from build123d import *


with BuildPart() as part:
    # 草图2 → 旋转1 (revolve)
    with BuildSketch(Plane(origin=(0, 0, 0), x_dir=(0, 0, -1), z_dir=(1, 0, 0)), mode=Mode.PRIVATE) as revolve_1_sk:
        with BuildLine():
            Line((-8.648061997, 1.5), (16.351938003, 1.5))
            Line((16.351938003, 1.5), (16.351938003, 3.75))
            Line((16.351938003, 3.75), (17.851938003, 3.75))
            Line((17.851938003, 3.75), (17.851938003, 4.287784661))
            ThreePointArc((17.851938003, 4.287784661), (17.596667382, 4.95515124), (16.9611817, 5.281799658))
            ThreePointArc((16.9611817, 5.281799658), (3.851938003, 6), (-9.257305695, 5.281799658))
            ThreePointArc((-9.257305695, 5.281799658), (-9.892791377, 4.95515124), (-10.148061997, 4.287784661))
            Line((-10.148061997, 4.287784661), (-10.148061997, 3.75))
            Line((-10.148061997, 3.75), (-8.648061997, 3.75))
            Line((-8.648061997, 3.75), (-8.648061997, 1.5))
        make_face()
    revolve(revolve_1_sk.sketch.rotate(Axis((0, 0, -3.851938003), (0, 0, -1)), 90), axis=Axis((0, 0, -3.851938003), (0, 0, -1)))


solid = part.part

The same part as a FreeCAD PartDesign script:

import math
import FreeCAD as App
import Part
import Sketcher

doc = App.newDocument("Part")
body = doc.addObject("PartDesign::Body", "Body")

sketch1 = body.newObject("Sketcher::SketchObject", "Sketch")
sketch1.AttachmentSupport = (doc.getObject("YZ_Plane"), [""])
sketch1.MapMode = "FlatFace"
sketch1.addGeometry(Part.LineSegment(App.Vector(1.5, 8.6, 0), App.Vector(1.5, -16.4, 0)), False)
sketch1.addGeometry(Part.LineSegment(App.Vector(1.5, -16.4, 0), App.Vector(3.8, -16.4, 0)), False)
sketch1.addGeometry(Part.LineSegment(App.Vector(3.8, -16.4, 0), App.Vector(3.8, -17.9, 0)), False)
sketch1.addGeometry(Part.LineSegment(App.Vector(3.8, -17.9, 0), App.Vector(4.3, -17.9, 0)), False)
sketch1.addGeometry(Part.ArcOfCircle(Part.Circle(App.Vector(4.3, -16.9, 0), App.Vector(0, 0, 1), 1), math.radians(-90), math.radians(-6)), False)
sketch1.addGeometry(Part.ArcOfCircle(Part.Circle(App.Vector(-114, -3.9, 0), App.Vector(0, 0, 1), 120), math.radians(-6.27), math.radians(6.27)), False)
sketch1.addGeometry(Part.ArcOfCircle(Part.Circle(App.Vector(4.3, 9.1, 0), App.Vector(0, 0, 1), 1), math.radians(6), math.radians(90)), False)
sketch1.addGeometry(Part.LineSegment(App.Vector(4.3, 10.1, 0), App.Vector(3.8, 10.1, 0)), False)
sketch1.addGeometry(Part.LineSegment(App.Vector(3.8, 10.1, 0), App.Vector(3.8, 8.6, 0)), False)
sketch1.addGeometry(Part.LineSegment(App.Vector(3.8, 8.6, 0), App.Vector(1.5, 8.6, 0)), False)
sketch1.addConstraint(Sketcher.Constraint("Coincident", 0, 2, 1, 1))
sketch1.addConstraint(Sketcher.Constraint("Coincident", 1, 2, 2, 1))
sketch1.addConstraint(Sketcher.Constraint("Coincident", 2, 2, 3, 1))
sketch1.addConstraint(Sketcher.Constraint("Tangent", 3, 2, 4, 1))
sketch1.addConstraint(Sketcher.Constraint("Tangent", 4, 2, 5, 1))
sketch1.addConstraint(Sketcher.Constraint("Tangent", 5, 2, 6, 1))
sketch1.addConstraint(Sketcher.Constraint("Tangent", 6, 2, 7, 1))
sketch1.addConstraint(Sketcher.Constraint("Coincident", 7, 2, 8, 1))
sketch1.addConstraint(Sketcher.Constraint("Coincident", 8, 2, 9, 1))
sketch1.addConstraint(Sketcher.Constraint("Coincident", 9, 2, 0, 1))
sketch1.addConstraint(Sketcher.Constraint("Vertical", 0))
sketch1.addConstraint(Sketcher.Constraint("Horizontal", 1))
sketch1.addConstraint(Sketcher.Constraint("Vertical", 2))
sketch1.addConstraint(Sketcher.Constraint("Horizontal", 3))
sketch1.addConstraint(Sketcher.Constraint("Horizontal", 7))
sketch1.addConstraint(Sketcher.Constraint("Vertical", 8))
sketch1.addConstraint(Sketcher.Constraint("Horizontal", 9))
sketch1.addConstraint(Sketcher.Constraint("Equal", 4, 6))
sketch1.addConstraint(Sketcher.Constraint("Vertical", 4, 3, 6, 3))
sketch1.addConstraint(Sketcher.Constraint("Vertical", 2, 2, 7, 2))
sketch1.addConstraint(Sketcher.Constraint("Equal", 2, 8))
sketch1.addConstraint(Sketcher.Constraint("Radius", 4, 1.0))
sketch1.addConstraint(Sketcher.Constraint("Radius", 5, 120.0))
sketch1.addConstraint(Sketcher.Constraint("DistanceY", 0, 2, 0, 1, 25.0))
sketch1.addConstraint(Sketcher.Constraint("DistanceY", 2, 2, 2, 1, 1.5))
sketch1.addConstraint(Sketcher.Constraint("DistanceX", 5, 3, -1, 1, 114.0))
sketch1.addConstraint(Sketcher.Constraint("DistanceX", 1, 1, 1, 2, 2.25))
sketch1.addConstraint(Sketcher.Constraint("DistanceX", -1, 1, 0, 2, 1.5))
sketch1.addConstraint(Sketcher.Constraint("DistanceY", 4, 3, -1, 1, 16.851938))
revolution = body.newObject("PartDesign::Revolution", "Revolution")
revolution.Profile = sketch1
revolution.ReferenceAxis = (sketch1, ["V_Axis"])
revolution.Angle = 360

doc.recompute()
